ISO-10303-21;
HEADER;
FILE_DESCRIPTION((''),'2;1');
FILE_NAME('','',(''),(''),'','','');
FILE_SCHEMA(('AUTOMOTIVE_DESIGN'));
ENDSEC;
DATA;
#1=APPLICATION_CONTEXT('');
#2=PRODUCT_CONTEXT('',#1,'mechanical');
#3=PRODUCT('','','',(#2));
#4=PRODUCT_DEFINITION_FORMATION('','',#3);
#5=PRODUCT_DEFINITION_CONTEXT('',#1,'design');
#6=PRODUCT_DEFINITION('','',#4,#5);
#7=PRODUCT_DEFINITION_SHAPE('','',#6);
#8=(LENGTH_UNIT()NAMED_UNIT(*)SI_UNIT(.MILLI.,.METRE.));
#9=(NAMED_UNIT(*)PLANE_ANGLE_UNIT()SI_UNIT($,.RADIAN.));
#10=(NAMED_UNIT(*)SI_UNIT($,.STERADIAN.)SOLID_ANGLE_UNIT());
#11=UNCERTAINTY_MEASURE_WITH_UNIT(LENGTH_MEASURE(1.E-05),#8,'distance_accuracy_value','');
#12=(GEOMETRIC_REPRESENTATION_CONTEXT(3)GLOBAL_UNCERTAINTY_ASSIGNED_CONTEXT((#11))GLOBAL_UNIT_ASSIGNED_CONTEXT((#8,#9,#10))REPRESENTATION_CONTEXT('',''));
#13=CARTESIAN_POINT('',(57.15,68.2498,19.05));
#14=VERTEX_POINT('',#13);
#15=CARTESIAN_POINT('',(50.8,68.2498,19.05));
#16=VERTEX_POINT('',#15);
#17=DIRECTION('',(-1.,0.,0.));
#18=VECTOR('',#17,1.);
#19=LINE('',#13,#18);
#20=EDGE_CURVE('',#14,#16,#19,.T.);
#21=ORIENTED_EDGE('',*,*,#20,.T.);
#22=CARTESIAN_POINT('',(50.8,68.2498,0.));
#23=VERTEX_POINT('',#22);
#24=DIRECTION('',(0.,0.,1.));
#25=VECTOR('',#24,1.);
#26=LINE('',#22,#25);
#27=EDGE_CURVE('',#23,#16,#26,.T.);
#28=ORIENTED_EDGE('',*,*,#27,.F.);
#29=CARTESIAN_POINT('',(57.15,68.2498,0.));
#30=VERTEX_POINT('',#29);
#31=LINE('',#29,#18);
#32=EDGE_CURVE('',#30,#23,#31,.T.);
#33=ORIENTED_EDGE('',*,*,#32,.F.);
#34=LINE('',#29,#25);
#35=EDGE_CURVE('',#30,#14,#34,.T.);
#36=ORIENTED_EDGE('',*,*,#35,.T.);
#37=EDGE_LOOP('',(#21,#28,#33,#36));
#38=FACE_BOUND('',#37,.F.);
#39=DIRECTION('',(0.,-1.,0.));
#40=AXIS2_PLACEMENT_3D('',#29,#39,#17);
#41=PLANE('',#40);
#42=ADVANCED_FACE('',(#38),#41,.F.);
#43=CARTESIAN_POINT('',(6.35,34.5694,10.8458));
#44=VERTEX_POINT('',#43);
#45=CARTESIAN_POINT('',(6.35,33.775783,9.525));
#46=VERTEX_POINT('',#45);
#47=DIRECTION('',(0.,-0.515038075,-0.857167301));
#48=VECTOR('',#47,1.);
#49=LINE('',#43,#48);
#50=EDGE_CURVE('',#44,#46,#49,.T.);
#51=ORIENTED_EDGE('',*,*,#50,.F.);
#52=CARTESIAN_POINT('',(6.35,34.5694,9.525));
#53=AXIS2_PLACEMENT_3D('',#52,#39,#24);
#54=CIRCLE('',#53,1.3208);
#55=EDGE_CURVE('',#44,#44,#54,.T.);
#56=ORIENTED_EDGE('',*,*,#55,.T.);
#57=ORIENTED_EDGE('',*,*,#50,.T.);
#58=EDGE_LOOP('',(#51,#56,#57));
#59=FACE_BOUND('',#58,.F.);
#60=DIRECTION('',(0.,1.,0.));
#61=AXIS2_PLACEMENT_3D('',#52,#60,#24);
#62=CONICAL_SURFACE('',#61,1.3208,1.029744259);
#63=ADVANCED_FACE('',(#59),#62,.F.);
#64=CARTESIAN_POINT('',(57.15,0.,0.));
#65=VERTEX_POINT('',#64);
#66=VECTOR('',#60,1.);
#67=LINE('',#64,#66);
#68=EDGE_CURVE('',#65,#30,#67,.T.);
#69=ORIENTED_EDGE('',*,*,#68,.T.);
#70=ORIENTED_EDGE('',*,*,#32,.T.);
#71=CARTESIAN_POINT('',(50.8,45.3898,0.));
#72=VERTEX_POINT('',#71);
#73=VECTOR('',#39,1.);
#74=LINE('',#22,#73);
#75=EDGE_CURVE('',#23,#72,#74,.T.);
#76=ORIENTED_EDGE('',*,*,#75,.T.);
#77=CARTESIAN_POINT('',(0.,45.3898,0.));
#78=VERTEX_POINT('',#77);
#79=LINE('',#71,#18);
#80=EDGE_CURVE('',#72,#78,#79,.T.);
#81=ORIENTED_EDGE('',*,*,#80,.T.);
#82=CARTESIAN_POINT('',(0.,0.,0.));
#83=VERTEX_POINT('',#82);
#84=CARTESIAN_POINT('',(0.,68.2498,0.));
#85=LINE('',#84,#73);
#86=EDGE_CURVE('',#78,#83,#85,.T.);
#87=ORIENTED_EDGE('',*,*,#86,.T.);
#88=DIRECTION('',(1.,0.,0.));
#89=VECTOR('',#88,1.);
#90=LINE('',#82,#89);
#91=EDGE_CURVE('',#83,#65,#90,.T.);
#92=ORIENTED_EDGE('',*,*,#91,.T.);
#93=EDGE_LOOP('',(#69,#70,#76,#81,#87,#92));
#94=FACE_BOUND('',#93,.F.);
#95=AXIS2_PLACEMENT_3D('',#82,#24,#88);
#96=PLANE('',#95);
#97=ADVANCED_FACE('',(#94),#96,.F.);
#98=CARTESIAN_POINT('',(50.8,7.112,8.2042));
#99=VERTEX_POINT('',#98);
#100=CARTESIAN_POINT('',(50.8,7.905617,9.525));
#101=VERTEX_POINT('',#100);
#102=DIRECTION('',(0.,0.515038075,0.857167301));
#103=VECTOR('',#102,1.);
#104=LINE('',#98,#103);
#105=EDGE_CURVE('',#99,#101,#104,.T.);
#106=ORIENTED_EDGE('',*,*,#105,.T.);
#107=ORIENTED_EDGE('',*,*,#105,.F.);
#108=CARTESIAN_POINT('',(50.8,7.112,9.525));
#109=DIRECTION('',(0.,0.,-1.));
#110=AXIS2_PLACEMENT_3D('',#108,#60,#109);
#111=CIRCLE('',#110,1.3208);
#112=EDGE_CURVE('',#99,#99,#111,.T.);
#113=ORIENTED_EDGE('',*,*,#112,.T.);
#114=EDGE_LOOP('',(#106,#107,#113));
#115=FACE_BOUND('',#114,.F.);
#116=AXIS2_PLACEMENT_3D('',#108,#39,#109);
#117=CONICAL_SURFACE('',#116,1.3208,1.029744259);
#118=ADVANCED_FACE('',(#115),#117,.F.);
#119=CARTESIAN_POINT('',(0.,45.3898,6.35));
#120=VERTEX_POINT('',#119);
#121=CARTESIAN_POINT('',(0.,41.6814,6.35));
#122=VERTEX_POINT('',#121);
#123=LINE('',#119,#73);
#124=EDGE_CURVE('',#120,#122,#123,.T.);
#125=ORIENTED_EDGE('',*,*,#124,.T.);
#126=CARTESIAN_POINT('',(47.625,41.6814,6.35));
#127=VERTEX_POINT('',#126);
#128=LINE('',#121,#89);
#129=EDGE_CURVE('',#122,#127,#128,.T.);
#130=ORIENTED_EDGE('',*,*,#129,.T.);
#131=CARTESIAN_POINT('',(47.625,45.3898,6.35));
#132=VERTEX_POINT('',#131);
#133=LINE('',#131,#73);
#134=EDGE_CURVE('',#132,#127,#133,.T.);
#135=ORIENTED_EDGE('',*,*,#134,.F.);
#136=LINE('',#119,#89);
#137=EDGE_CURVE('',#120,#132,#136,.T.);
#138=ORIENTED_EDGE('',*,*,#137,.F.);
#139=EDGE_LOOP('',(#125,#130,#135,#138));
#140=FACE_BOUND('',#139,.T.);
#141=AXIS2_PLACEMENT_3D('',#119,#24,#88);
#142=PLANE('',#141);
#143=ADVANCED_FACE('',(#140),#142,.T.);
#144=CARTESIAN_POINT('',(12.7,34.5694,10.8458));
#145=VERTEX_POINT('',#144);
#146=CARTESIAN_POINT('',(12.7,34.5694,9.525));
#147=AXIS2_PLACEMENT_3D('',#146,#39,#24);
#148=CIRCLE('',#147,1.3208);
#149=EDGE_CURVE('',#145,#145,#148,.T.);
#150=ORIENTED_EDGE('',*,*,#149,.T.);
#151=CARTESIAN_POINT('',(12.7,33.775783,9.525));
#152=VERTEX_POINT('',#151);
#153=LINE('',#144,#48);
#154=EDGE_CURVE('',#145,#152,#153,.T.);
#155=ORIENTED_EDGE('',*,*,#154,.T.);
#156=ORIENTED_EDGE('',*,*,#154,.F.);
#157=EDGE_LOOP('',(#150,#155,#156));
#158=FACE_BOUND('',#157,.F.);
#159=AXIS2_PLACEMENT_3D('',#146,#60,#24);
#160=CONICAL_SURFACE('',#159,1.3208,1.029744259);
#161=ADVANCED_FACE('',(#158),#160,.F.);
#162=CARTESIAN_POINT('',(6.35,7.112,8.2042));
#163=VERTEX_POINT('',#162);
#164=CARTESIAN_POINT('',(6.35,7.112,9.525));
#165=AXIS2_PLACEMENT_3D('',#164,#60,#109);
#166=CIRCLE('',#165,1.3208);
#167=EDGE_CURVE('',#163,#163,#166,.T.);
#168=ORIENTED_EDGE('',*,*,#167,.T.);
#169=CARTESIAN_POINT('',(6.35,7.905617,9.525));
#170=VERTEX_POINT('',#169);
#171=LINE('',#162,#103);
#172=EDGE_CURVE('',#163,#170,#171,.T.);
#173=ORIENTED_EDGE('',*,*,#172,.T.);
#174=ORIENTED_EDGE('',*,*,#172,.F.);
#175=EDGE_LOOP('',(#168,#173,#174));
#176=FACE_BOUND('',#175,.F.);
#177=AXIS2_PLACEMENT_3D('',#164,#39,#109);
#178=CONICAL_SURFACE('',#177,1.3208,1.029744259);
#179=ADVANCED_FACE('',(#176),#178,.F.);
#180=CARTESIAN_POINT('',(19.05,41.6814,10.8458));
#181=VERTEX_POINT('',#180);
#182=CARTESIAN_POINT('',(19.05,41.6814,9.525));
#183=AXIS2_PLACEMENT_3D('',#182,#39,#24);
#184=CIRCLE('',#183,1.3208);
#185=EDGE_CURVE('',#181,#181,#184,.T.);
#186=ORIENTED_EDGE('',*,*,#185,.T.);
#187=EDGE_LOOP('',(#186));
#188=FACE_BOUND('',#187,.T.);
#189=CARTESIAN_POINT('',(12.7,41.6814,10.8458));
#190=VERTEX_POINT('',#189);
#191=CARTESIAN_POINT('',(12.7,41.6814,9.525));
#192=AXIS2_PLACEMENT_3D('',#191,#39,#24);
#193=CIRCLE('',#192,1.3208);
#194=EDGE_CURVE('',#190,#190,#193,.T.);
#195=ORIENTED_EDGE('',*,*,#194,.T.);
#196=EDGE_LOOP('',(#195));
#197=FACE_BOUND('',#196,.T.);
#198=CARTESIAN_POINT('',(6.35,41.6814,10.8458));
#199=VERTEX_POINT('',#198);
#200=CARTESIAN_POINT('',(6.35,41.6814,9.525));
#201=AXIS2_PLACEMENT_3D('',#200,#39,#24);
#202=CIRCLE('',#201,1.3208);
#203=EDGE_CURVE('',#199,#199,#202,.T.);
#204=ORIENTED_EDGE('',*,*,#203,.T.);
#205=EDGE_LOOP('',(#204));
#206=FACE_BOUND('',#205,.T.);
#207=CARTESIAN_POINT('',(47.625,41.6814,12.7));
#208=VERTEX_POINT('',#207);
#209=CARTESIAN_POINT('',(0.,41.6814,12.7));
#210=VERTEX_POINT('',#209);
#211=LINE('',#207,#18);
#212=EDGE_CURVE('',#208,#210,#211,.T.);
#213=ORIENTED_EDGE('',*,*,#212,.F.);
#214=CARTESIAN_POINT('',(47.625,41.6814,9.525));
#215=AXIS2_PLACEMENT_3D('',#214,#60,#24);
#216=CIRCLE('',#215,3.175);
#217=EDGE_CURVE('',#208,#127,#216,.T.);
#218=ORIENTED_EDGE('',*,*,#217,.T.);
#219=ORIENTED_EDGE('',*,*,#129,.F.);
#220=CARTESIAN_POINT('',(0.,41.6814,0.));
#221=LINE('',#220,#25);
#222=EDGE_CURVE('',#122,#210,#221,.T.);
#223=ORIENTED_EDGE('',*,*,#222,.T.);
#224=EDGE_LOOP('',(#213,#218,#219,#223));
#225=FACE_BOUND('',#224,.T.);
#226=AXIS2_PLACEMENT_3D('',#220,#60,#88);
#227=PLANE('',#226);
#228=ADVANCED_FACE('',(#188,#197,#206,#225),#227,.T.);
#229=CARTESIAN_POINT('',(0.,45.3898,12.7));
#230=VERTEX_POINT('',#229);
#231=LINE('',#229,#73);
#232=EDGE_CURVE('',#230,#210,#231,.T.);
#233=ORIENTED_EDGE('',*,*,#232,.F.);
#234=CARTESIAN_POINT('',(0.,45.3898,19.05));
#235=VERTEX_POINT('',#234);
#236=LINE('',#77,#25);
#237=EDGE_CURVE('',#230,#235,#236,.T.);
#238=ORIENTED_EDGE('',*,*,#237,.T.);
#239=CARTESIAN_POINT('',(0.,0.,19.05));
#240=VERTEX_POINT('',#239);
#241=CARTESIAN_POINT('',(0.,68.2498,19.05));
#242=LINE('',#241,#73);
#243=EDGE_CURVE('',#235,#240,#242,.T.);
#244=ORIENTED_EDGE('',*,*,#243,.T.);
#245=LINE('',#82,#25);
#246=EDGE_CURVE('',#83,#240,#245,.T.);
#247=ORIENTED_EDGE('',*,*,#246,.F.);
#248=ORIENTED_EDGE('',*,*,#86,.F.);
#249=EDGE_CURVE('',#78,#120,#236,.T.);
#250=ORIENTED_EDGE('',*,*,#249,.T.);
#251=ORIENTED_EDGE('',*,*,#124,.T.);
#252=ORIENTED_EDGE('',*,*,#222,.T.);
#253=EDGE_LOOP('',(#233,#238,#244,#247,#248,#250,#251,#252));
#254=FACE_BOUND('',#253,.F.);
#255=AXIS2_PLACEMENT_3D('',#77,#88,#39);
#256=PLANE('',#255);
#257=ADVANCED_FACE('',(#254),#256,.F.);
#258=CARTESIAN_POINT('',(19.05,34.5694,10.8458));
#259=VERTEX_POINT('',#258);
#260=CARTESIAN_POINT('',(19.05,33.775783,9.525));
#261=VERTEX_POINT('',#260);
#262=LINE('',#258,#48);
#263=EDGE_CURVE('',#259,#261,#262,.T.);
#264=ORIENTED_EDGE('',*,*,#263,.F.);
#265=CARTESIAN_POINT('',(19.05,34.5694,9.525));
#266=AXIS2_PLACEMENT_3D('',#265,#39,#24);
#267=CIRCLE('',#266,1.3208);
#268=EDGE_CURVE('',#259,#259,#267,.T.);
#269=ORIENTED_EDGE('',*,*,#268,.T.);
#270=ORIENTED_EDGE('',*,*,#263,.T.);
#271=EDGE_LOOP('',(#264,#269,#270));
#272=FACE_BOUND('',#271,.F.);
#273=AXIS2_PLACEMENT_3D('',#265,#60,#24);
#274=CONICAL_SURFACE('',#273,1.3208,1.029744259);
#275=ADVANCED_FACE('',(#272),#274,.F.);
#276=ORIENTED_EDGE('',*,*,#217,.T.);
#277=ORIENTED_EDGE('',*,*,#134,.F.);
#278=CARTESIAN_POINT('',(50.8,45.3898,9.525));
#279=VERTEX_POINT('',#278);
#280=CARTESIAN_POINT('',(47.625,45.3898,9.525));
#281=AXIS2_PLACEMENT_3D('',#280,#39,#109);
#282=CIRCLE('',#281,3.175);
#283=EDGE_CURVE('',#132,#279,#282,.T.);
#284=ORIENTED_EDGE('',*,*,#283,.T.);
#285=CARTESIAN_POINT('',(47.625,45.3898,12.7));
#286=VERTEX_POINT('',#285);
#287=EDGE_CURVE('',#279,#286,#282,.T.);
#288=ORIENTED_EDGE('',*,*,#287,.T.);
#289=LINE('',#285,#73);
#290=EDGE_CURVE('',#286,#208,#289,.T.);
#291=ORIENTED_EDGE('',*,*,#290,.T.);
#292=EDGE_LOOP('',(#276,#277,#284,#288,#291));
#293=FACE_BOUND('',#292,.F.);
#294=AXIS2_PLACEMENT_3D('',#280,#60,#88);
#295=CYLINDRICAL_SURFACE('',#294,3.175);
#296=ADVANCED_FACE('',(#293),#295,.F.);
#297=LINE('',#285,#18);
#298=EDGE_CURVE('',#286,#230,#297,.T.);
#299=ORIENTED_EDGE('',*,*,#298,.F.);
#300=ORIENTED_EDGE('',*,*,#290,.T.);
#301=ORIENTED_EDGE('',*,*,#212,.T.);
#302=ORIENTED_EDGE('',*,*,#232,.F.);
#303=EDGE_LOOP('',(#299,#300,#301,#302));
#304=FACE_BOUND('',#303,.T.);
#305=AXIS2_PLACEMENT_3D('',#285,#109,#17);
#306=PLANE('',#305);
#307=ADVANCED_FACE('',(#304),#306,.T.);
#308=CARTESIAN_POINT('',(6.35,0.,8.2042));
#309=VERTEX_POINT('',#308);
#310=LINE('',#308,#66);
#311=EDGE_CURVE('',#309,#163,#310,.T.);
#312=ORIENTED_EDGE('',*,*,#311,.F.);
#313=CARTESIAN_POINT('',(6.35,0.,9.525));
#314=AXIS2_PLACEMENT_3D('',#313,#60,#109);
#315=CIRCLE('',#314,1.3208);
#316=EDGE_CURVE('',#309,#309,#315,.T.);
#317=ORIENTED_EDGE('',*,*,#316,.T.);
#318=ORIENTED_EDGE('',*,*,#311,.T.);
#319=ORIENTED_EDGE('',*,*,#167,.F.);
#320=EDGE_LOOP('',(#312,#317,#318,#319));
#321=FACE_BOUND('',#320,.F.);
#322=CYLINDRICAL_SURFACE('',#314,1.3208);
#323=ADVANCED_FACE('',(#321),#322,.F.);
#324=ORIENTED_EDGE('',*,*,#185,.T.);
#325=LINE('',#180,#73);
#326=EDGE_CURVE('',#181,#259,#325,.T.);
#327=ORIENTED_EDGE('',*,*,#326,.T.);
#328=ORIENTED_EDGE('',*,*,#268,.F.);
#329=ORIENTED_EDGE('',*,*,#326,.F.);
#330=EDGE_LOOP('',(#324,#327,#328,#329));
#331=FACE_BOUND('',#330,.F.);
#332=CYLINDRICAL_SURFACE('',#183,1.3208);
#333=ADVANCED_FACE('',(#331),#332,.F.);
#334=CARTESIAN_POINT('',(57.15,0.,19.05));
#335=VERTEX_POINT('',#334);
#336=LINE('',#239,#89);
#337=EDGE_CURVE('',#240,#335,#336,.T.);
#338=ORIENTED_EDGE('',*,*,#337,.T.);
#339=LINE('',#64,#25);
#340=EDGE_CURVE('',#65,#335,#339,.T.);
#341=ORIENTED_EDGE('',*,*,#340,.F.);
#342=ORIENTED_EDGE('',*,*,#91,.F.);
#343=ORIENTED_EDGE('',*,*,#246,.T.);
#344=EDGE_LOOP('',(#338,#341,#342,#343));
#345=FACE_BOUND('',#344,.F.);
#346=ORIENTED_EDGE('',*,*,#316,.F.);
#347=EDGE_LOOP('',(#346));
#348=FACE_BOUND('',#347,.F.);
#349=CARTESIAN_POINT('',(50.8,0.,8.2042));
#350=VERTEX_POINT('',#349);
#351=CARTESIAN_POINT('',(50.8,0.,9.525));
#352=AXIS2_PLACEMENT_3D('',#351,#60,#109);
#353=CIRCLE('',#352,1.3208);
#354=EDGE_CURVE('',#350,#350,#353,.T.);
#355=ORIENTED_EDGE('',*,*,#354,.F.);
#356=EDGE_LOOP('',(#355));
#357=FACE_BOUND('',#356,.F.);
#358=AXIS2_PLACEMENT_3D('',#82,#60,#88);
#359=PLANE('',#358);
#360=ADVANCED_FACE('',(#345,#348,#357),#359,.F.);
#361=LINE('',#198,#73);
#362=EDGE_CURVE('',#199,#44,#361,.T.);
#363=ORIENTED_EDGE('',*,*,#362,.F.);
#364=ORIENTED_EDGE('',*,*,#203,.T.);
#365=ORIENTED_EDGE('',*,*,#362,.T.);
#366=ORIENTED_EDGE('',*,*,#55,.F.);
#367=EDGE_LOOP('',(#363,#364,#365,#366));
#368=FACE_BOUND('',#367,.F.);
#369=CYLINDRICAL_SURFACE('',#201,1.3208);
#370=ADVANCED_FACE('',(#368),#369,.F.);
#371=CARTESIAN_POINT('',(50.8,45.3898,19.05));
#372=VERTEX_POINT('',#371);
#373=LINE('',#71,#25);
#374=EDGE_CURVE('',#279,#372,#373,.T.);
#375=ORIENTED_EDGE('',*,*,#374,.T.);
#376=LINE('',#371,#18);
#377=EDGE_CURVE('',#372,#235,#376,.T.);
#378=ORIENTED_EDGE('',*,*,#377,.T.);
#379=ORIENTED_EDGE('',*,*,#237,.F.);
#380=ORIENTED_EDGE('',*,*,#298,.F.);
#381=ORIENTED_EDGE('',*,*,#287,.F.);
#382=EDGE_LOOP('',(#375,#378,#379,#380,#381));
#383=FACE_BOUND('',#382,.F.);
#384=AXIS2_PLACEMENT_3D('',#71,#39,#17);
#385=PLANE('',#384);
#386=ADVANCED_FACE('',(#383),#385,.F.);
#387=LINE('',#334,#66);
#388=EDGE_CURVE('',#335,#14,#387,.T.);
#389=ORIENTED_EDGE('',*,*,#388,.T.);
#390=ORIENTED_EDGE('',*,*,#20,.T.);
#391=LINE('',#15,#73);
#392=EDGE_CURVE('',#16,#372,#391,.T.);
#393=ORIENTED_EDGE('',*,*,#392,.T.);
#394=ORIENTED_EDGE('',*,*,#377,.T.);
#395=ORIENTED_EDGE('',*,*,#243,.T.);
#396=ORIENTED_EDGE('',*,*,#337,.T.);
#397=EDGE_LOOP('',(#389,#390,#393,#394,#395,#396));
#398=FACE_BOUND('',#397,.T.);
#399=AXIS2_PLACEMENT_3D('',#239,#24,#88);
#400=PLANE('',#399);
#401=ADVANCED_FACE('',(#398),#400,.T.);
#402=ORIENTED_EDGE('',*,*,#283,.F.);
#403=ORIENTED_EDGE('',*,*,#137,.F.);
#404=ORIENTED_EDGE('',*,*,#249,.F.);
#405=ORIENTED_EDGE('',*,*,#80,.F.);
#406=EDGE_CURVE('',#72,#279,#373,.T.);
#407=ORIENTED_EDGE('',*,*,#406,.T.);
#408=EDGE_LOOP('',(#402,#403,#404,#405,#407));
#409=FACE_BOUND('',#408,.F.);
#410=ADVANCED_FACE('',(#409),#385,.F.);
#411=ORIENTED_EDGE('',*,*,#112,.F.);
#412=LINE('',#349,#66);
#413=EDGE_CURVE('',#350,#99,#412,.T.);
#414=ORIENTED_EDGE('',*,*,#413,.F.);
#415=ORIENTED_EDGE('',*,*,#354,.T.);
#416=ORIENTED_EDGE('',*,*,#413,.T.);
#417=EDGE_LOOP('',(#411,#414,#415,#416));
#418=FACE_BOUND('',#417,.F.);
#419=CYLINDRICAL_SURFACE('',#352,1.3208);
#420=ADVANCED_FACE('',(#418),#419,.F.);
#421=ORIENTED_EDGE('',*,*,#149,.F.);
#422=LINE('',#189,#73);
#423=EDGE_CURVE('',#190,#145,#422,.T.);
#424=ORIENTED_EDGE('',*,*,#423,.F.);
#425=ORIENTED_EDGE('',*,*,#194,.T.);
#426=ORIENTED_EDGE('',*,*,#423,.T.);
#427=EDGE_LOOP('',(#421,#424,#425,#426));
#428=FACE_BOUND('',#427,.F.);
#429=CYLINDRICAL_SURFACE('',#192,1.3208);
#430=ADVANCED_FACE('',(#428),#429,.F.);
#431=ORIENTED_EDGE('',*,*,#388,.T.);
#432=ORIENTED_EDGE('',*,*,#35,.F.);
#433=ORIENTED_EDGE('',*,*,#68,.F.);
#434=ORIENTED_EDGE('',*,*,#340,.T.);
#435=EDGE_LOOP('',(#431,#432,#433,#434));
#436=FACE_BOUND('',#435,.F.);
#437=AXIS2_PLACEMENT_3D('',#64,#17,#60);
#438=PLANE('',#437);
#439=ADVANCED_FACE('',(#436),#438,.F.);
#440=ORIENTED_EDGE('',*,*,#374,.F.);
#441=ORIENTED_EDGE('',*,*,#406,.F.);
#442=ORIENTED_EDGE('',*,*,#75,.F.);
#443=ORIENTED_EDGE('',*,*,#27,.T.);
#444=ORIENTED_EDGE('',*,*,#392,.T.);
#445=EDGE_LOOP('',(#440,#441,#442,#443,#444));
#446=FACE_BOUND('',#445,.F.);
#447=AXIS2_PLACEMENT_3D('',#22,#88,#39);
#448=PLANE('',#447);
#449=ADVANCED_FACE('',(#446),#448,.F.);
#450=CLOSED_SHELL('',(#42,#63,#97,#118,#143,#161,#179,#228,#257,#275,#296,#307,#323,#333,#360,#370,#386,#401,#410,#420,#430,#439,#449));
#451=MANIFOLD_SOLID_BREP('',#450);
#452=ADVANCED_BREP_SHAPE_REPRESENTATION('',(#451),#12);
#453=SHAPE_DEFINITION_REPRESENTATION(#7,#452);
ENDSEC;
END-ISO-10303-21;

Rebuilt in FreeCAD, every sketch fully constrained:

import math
import FreeCAD as App
import Part
import Sketcher
Q = App.Units.Quantity

doc = App.newDocument("Part")
body = doc.addObject("PartDesign::Body", "Body")

sketch1 = body.newObject("Sketcher::SketchObject", "Sketch")
sketch1.AttachmentSupport = (doc.getObject("XY_Plane"), [""])
sketch1.MapMode = "FlatFace"
sketch1.addGeometry([
    Part.LineSegment(App.Vector(0, 45, 0), App.Vector(0, 0, 0)),
    Part.LineSegment(App.Vector(0, 0, 0), App.Vector(57, 0, 0)),
    Part.LineSegment(App.Vector(57, 0, 0), App.Vector(57, 68, 0)),
    Part.LineSegment(App.Vector(57, 68, 0), App.Vector(51, 68, 0)),
    Part.LineSegment(App.Vector(51, 68, 0), App.Vector(51, 45, 0)),
    Part.LineSegment(App.Vector(51, 45, 0), App.Vector(0, 45, 0)),
], False)
sketch1.addConstraint([
    Sketcher.Constraint("Coincident", 0, 2, 1, 1),
    Sketcher.Constraint("Coincident", 1, 2, 2, 1),
    Sketcher.Constraint("Coincident", 2, 2, 3, 1),
    Sketcher.Constraint("Coincident", 3, 2, 4, 1),
    Sketcher.Constraint("Coincident", 4, 2, 5, 1),
    Sketcher.Constraint("Coincident", 5, 2, 0, 1),
    Sketcher.Constraint("Vertical", 0),
    Sketcher.Constraint("Horizontal", 1),
    Sketcher.Constraint("Vertical", 2),
    Sketcher.Constraint("Horizontal", 3),
    Sketcher.Constraint("Vertical", 4),
    Sketcher.Constraint("Horizontal", 5),
    Sketcher.Constraint("Coincident", 0, 2, -1, 1),
    Sketcher.Constraint("DistanceX", 5, 2, 5, 1, Q("2 in")),
    Sketcher.Constraint("DistanceY", 4, 2, 4, 1, Q("0.9 in")),
    Sketcher.Constraint("DistanceX", 1, 1, 1, 2, Q("2.25 in")),
    Sketcher.Constraint("DistanceY", 2, 1, 2, 2, Q("2.687 in")),
])
pad1 = body.newObject("PartDesign::Pad", "Pad")
pad1.Profile = sketch1
pad1.Length = Q("0.75 in")

sketch2 = body.newObject("Sketcher::SketchObject", "Sketch001")
sketch2.AttachmentSupport = (doc.getObject("XZ_Plane"), [""])
sketch2.MapMode = "FlatFace"
sketch2.AttachmentOffset = App.Placement(App.Vector(0, 0, -1.787 * 25.4), App.Rotation())
sketch2.addGeometry([
    Part.LineSegment(App.Vector(47.6, 6.3, 0), App.Vector(0, 6.3, 0)),
    Part.LineSegment(App.Vector(0, 6.3, 0), App.Vector(0, 12.7, 0)),
    Part.LineSegment(App.Vector(0, 12.7, 0), App.Vector(47.6, 12.7, 0)),
    Part.ArcOfCircle(Part.Circle(App.Vector(47.6, 9.5, 0), App.Vector(0, 0, 1), 3.2), math.radians(-90), math.radians(90)),
], False)
sketch2.addConstraint([
    Sketcher.Constraint("Coincident", 0, 2, 1, 1),
    Sketcher.Constraint("Coincident", 1, 2, 2, 1),
    Sketcher.Constraint("Tangent", 2, 2, 3, 2),
    Sketcher.Constraint("Tangent", 3, 1, 0, 1),
    Sketcher.Constraint("Horizontal", 0),
    Sketcher.Constraint("Vertical", 1),
    Sketcher.Constraint("Horizontal", 2),
    Sketcher.Constraint("PointOnObject", 0, 2, -2),
    Sketcher.Constraint("Radius", 3, Q("0.125 in")),
    Sketcher.Constraint("DistanceX", 0, 2, 0, 1, Q("1.875 in")),
    Sketcher.Constraint("DistanceY", -1, 1, 0, 2, Q("0.25 in")),
])
pocket1 = body.newObject("PartDesign::Pocket", "Pocket")
pocket1.Profile = sketch2
pocket1.Length = Q("0.146 in")
pocket1.Reversed = True

sketch3 = body.newObject("Sketcher::SketchObject", "Sketch002")
sketch3.AttachmentSupport = (doc.getObject("XZ_Plane"), [""])
sketch3.MapMode = "FlatFace"
sketch3.addGeometry([
    Part.Circle(App.Vector(50.8, 9.5, 0), App.Vector(0, 0, 1), 1.3),
    Part.Circle(App.Vector(6.3, 9.5, 0), App.Vector(0, 0, 1), 1.3),
], False)
sketch3.addConstraint([
    Sketcher.Constraint("Equal", 0, 1),
    Sketcher.Constraint("Horizontal", 0, 3, 1, 3),
    Sketcher.Constraint("Diameter", 0, Q("0.104 in")),
    Sketcher.Constraint("DistanceX", -1, 1, 0, 3, Q("2 in")),
    Sketcher.Constraint("DistanceX", -1, 1, 1, 3, Q("0.25 in")),
    Sketcher.Constraint("DistanceY", -1, 1, 0, 3, Q("0.375 in")),
])
doc.recompute()
hole = body.newObject("PartDesign::Hole", "Hole")
hole.Profile = sketch3
hole.ThreadType = "None"
hole.Diameter = Q("0.104 in")
hole.DepthType = "Dimension"
hole.Depth = Q("0.28 in")
hole.DrillPoint = "Angled"
hole.DrillPointAngle = 118

sketch4 = body.newObject("Sketcher::SketchObject", "Sketch003")
sketch4.AttachmentSupport = (doc.getObject("XZ_Plane"), [""])
sketch4.MapMode = "FlatFace"
sketch4.AttachmentOffset = App.Placement(App.Vector(0, 0, -1.641 * 25.4), App.Rotation())
sketch4.addGeometry([
    Part.Circle(App.Vector(6.3, 9.5, 0), App.Vector(0, 0, 1), 1.3),
    Part.Circle(App.Vector(12.7, 9.5, 0), App.Vector(0, 0, 1), 1.3),
    Part.Circle(App.Vector(19.1, 9.5, 0), App.Vector(0, 0, 1), 1.3),
], False)
sketch4.addConstraint([
    Sketcher.Constraint("Equal", 0, 1),
    Sketcher.Constraint("Equal", 1, 2),
    Sketcher.Constraint("Horizontal", 0, 3, 1, 3),
    Sketcher.Constraint("Horizontal", 1, 3, 2, 3),
    Sketcher.Constraint("Diameter", 0, Q("0.104 in")),
    Sketcher.Constraint("DistanceX", -1, 1, 1, 3, Q("0.5 in")),
    Sketcher.Constraint("DistanceX", 0, 3, 2, 3, Q("0.5 in")),
    Sketcher.Constraint("DistanceX", -1, 1, 0, 3, Q("0.25 in")),
    Sketcher.Constraint("DistanceY", -1, 1, 0, 3, Q("0.375 in")),
])
doc.recompute()
hole2 = body.newObject("PartDesign::Hole", "Hole001")
hole2.Profile = sketch4
hole2.ThreadType = "None"
hole2.Diameter = Q("0.104 in")
hole2.DepthType = "Dimension"
hole2.Depth = Q("0.28 in")
hole2.DrillPoint = "Angled"
hole2.DrillPointAngle = 118
hole2.Reversed = True

doc.recompute()
